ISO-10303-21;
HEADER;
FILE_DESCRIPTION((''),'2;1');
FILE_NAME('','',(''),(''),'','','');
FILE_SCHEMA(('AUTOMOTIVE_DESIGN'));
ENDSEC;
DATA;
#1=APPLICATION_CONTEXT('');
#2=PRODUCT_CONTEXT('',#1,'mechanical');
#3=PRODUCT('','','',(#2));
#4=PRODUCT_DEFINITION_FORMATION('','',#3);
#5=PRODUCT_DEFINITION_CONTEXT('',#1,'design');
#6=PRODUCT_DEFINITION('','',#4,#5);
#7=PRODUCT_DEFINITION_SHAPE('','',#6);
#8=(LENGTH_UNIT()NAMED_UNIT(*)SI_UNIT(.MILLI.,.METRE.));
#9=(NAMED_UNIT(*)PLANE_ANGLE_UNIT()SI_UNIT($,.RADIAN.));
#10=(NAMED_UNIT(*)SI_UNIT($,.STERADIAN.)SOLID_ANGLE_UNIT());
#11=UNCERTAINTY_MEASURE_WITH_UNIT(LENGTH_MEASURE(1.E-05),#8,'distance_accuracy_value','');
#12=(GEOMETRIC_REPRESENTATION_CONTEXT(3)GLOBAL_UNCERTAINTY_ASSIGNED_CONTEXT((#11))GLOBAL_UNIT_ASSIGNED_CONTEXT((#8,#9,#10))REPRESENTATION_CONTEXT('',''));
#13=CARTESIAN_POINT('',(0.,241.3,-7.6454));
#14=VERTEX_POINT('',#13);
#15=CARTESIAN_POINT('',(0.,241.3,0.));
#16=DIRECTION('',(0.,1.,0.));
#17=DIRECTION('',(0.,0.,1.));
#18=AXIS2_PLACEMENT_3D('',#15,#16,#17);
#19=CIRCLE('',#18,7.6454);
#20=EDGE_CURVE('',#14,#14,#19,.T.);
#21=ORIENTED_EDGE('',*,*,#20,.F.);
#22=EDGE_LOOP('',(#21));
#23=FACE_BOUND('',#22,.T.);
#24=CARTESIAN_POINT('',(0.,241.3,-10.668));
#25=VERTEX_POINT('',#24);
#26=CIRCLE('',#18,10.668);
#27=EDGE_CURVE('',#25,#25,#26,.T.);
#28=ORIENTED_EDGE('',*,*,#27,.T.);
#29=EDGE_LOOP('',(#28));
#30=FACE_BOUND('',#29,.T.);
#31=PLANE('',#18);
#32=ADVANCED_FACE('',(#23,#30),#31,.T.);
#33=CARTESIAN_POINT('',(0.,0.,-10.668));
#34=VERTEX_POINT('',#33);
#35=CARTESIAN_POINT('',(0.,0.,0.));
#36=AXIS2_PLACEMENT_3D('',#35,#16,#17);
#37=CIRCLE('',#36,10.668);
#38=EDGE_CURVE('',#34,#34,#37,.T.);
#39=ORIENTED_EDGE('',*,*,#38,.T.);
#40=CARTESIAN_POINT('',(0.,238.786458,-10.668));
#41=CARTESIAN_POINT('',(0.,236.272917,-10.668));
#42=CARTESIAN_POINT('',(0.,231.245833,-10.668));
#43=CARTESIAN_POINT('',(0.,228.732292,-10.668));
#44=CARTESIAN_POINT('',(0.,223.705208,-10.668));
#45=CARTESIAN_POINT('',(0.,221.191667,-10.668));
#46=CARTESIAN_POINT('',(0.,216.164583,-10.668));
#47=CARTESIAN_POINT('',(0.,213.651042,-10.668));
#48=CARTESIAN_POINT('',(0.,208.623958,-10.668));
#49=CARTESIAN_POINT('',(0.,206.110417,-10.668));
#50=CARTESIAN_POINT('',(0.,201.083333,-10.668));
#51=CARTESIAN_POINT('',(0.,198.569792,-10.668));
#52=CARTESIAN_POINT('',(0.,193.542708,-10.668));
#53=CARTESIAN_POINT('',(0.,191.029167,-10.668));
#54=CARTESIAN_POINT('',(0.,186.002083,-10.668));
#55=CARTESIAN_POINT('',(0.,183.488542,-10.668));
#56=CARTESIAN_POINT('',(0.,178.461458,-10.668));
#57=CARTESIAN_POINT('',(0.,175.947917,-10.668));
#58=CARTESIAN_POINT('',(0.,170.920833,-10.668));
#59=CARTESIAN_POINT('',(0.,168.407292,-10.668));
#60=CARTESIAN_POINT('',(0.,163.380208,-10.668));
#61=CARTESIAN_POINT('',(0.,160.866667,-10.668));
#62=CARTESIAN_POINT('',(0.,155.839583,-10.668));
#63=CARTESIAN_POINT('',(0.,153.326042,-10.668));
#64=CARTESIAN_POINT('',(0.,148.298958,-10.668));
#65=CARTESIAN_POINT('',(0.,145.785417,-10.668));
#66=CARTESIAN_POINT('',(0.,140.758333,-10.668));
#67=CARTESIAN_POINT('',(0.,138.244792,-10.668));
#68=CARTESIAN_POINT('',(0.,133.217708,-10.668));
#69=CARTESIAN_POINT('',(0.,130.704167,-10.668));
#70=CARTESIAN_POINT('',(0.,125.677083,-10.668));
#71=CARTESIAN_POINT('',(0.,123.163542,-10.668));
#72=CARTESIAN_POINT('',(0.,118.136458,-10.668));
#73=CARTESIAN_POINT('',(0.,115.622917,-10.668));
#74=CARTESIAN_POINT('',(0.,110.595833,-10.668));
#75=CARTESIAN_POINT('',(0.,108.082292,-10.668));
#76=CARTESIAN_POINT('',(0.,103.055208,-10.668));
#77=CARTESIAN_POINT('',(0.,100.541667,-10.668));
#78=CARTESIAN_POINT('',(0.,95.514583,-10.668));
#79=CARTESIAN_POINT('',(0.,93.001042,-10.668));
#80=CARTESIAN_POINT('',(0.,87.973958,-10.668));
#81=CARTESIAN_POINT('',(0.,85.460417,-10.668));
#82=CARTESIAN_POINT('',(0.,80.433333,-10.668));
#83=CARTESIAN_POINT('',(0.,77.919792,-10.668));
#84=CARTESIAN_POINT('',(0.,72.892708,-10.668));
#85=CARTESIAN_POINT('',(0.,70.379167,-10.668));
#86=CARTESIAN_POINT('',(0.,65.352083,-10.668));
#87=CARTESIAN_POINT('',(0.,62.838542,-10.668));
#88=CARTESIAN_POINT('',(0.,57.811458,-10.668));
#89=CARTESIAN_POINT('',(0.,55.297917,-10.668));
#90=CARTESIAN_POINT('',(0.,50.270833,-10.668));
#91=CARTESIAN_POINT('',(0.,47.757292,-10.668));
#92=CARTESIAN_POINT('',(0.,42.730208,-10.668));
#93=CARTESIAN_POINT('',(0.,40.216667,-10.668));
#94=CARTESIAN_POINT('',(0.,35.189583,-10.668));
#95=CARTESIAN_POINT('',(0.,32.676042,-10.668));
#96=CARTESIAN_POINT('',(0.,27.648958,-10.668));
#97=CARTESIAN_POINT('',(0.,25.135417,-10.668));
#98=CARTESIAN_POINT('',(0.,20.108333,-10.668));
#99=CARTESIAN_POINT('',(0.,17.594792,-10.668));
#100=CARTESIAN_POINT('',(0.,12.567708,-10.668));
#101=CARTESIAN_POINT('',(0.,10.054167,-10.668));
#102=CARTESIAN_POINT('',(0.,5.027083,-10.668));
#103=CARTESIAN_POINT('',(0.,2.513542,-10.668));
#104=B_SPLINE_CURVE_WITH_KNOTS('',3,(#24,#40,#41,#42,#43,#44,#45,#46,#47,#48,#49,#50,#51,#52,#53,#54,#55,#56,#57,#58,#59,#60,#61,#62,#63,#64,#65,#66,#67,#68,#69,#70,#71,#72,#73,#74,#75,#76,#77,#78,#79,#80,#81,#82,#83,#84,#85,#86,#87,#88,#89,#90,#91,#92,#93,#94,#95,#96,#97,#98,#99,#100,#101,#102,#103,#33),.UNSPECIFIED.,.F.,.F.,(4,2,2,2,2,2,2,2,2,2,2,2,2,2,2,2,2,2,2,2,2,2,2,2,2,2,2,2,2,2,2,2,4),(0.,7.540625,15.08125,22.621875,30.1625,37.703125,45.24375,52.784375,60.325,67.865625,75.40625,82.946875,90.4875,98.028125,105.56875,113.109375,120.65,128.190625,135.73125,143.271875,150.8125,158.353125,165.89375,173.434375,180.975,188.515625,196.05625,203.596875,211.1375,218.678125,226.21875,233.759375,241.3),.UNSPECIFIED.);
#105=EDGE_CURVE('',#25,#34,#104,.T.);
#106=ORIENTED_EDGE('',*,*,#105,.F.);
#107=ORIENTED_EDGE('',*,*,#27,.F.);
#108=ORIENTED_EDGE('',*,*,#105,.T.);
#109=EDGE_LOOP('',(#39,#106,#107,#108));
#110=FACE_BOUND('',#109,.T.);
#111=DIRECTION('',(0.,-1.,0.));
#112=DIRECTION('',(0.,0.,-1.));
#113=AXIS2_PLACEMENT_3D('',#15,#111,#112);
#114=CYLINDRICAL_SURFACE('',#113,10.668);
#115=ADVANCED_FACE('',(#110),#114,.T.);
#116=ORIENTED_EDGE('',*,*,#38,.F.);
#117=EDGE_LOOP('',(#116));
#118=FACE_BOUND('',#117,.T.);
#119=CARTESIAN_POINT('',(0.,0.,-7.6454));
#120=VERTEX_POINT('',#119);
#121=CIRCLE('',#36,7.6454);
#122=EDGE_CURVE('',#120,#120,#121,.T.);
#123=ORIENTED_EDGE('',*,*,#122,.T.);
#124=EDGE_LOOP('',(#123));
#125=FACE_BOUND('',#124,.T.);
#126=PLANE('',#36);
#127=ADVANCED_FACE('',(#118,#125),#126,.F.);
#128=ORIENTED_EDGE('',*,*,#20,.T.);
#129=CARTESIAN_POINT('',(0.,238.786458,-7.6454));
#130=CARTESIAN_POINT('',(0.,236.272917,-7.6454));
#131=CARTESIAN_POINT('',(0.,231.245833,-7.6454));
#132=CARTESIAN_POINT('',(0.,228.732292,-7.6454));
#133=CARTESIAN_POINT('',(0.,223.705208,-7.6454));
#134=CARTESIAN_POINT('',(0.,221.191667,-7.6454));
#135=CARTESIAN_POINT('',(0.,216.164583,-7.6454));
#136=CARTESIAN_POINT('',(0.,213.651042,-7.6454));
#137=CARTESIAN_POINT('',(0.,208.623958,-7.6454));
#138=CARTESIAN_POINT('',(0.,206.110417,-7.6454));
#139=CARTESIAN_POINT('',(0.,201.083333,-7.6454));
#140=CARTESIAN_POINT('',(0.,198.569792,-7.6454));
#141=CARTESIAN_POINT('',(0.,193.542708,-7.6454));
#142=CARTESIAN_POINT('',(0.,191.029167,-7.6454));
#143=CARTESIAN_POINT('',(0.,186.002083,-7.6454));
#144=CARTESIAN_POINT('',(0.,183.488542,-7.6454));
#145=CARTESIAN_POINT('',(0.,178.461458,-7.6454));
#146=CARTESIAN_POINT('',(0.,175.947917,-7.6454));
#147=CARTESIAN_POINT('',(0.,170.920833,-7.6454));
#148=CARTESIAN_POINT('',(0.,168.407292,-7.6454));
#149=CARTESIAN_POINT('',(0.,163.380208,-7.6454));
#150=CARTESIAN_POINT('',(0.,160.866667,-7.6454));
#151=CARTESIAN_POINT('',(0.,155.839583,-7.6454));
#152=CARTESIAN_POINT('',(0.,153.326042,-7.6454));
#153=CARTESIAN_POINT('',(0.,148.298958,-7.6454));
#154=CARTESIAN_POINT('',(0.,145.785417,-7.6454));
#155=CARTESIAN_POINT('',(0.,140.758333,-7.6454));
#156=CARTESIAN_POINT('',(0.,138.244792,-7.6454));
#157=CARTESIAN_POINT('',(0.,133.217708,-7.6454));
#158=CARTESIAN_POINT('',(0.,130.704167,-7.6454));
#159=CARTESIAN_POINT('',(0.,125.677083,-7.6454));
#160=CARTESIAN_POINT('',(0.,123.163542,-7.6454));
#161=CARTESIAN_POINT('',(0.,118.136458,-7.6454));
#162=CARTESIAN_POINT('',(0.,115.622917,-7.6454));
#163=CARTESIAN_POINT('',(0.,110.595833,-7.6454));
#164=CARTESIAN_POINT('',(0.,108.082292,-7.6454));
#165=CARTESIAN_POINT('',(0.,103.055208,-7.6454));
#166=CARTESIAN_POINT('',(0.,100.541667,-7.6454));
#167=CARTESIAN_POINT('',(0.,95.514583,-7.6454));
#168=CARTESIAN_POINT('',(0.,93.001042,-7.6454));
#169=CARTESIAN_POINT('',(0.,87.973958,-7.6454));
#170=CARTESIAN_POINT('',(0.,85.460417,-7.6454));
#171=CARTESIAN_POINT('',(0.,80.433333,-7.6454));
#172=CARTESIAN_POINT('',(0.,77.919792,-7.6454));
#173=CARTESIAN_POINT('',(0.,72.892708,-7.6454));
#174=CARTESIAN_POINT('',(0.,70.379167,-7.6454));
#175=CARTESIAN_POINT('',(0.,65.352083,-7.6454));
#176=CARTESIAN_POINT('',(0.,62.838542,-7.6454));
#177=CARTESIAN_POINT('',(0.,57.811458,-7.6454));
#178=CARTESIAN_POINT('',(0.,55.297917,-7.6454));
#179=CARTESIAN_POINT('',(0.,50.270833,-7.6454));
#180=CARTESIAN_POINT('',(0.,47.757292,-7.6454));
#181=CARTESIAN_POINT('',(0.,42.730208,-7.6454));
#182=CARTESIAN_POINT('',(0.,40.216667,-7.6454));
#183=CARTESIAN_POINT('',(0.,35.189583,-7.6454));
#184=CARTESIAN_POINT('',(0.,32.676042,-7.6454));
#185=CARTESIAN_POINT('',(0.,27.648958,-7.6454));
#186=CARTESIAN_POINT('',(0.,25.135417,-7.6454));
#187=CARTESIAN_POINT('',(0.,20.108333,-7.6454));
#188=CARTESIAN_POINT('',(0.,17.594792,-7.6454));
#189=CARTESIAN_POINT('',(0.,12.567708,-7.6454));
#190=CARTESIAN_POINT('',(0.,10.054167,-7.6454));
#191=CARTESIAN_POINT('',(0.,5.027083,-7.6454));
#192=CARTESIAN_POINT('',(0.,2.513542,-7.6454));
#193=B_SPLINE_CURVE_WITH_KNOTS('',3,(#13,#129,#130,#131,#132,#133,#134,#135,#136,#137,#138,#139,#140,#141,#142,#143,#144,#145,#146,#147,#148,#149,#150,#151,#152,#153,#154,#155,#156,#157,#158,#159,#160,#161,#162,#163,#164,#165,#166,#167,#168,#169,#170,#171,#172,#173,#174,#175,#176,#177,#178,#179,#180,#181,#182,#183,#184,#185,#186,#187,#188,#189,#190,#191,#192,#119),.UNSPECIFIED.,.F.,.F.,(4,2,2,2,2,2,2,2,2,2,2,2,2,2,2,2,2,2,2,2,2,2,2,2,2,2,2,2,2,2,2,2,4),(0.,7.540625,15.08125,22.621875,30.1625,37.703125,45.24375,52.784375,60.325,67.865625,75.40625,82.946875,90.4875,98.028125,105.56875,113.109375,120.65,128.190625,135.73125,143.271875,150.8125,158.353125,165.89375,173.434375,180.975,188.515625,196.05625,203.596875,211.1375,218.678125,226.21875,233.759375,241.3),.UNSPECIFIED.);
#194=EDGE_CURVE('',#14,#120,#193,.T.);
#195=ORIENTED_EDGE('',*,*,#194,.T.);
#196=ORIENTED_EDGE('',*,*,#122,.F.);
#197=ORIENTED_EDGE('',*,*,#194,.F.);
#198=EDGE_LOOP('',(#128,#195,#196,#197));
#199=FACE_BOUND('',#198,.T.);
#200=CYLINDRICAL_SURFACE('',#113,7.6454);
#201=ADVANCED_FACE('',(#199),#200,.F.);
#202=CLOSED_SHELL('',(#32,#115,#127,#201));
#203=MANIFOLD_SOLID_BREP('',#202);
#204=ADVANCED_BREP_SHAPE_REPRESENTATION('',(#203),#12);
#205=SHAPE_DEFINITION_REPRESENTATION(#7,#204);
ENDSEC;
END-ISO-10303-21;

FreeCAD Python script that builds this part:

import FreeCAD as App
import Part
import Sketcher
Q = App.Units.Quantity

doc = App.newDocument("Part")
params = doc.addObject("Spreadsheet::Sheet", "Params")
for row, (alias, value) in enumerate([
    ("sketch1_diameter", "0.84 in"),
    ("sketch1_diameter2", "0.602 in"),
    ("pad1_length", "9.5 in"),
], start=1):
    params.set(f"A{row}", alias)
    params.set(f"B{row}", "=" + value)
    params.setAlias(f"B{row}", alias)

body = doc.addObject("PartDesign::Body", "Body")

sketch1 = body.newObject("Sketcher::SketchObject", "Sketch")
sketch1.AttachmentSupport = (doc.getObject("XZ_Plane"), [""])
sketch1.MapMode = "FlatFace"
sketch1.addGeometry(Part.Circle(App.Vector(0, 0, 0), App.Vector(0, 0, 1), 11), False)
sketch1.addGeometry(Part.Circle(App.Vector(0, 0, 0), App.Vector(0, 0, 1), 8), False)
sketch1.addConstraint(Sketcher.Constraint("Coincident", 0, 3, -1, 1))
sketch1.addConstraint(Sketcher.Constraint("Coincident", 1, 3, -1, 1))
sketch1.addConstraint(Sketcher.Constraint("Diameter", 0, Q("0.84 in")))
sketch1.addConstraint(Sketcher.Constraint("Diameter", 1, Q("0.602 in")))
sketch1.setExpression("Constraints[2]", "Params.sketch1_diameter")
sketch1.setExpression("Constraints[3]", "Params.sketch1_diameter2")
pad1 = body.newObject("PartDesign::Pad", "Pad")
pad1.Profile = sketch1
pad1.setExpression("Length", "Params.pad1_length")
pad1.Reversed = True

doc.recompute()
